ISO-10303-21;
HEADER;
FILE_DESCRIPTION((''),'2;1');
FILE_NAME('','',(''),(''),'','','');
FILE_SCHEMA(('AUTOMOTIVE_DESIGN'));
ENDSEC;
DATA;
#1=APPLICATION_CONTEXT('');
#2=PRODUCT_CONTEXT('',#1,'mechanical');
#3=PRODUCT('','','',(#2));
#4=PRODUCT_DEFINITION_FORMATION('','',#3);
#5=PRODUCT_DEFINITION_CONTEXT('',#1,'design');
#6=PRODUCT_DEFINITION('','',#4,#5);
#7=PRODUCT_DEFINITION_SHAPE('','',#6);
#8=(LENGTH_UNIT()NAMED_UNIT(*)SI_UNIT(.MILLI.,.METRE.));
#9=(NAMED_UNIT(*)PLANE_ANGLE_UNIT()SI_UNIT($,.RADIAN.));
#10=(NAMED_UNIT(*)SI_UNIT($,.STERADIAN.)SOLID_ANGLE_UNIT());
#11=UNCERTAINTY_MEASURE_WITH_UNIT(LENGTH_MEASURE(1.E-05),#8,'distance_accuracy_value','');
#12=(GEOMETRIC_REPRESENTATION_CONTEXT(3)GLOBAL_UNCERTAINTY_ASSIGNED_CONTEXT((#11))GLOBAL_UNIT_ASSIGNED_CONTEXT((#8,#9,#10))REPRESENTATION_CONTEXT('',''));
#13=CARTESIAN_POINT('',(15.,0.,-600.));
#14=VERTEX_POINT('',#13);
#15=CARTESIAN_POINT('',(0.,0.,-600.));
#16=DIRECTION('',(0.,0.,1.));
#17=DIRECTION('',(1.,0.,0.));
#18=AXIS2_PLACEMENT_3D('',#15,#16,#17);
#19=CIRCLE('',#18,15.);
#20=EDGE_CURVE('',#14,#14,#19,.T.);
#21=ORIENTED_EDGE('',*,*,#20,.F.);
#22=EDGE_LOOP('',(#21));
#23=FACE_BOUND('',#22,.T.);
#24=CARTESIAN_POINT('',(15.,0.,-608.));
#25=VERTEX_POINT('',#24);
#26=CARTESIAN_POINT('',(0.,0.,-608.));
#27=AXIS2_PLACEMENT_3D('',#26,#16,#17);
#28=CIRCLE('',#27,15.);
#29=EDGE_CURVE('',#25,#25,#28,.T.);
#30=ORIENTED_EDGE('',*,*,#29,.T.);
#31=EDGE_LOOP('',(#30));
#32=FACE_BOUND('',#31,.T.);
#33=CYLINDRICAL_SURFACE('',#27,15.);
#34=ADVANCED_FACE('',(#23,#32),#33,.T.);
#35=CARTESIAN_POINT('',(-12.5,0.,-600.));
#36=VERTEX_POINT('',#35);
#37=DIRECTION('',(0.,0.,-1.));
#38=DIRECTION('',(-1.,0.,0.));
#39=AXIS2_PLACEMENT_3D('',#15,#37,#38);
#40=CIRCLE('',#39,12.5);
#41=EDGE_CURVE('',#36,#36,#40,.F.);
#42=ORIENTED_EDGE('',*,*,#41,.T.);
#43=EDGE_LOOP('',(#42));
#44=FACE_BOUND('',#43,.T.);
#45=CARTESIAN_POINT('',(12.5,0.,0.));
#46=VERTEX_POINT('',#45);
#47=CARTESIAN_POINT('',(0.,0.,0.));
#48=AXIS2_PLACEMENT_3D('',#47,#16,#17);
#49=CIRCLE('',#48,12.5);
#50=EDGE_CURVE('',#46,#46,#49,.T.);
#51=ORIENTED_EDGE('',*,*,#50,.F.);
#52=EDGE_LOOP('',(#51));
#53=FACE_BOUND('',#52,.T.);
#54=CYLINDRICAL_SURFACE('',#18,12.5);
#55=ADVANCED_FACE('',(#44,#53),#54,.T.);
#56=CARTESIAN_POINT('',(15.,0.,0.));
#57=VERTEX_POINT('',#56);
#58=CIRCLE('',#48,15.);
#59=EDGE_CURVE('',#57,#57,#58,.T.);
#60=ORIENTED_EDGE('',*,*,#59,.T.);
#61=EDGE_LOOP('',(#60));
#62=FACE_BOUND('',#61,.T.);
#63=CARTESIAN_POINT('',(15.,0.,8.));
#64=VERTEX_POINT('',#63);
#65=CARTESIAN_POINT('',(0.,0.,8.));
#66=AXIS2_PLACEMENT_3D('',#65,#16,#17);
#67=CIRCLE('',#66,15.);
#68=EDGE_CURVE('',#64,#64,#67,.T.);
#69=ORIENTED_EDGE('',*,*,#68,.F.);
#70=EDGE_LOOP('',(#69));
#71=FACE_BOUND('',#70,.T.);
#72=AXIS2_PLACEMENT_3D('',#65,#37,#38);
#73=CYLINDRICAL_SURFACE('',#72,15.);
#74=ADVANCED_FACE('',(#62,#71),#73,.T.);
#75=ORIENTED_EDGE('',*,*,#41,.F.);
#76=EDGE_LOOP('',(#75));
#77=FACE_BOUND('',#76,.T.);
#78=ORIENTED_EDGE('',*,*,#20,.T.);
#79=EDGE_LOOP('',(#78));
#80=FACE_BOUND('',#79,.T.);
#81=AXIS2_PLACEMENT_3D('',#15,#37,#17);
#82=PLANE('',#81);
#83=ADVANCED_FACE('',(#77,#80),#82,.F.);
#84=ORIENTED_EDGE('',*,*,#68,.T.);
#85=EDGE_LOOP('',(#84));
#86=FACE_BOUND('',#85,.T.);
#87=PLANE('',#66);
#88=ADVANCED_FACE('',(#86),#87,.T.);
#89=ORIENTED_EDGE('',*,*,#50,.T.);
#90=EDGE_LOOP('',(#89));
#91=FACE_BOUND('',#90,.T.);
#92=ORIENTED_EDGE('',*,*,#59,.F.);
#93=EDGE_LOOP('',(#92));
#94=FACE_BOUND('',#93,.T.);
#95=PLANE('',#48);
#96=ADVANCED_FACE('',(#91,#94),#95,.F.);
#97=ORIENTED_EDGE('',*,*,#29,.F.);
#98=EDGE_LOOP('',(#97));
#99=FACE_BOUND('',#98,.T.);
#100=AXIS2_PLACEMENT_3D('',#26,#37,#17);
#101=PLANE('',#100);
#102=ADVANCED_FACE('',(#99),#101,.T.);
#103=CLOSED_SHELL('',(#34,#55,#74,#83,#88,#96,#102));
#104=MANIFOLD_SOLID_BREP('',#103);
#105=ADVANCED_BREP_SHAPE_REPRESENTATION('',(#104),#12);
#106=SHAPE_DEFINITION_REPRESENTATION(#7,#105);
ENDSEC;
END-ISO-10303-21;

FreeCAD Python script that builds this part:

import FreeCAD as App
import Part
import Sketcher

doc = App.newDocument("Part")
body = doc.addObject("PartDesign::Body", "Body")

sketch1 = body.newObject("Sketcher::SketchObject", "Sketch")
sketch1.AttachmentSupport = (doc.getObject("XY_Plane"), [""])
sketch1.MapMode = "FlatFace"
sketch1.addGeometry(Part.Circle(App.Vector(0, 0, 0), App.Vector(0, 0, 1), 12), False)
sketch1.addConstraint([
    Sketcher.Constraint("Coincident", 0, 3, -1, 1),
    Sketcher.Constraint("Diameter", 0, 25.0),
])
pad1 = body.newObject("PartDesign::Pad", "Pad")
pad1.Profile = sketch1
pad1.Length = 600
pad1.Reversed = True

sketch2 = body.newObject("Sketcher::SketchObject", "Sketch001")
sketch2.AttachmentSupport = (doc.getObject("XY_Plane"), [""])
sketch2.MapMode = "FlatFace"
sketch2.addGeometry(Part.Circle(App.Vector(0, 0, 0), App.Vector(0, 0, 1), 15), False)
sketch2.addConstraint([
    Sketcher.Constraint("Coincident", 0, 3, -1, 1),
    Sketcher.Constraint("Diameter", 0, 30.0),
])
pad2 = body.newObject("PartDesign::Pad", "Pad001")
pad2.Profile = sketch2
pad2.Length = 8
doc.recompute()

datumplane = body.newObject("PartDesign::Plane", "DatumPlane")
datumplane.AttachmentSupport = (doc.getObject("XY_Plane"), [""])
datumplane.MapMode = "FlatFace"
datumplane.AttachmentOffset = App.Placement(App.Vector(0, 0, -300), App.Rotation())
mirrored = body.newObject("PartDesign::Mirrored", "Mirrored")
mirrored.Originals = [pad2]
mirrored.MirrorPlane = (datumplane, [""])
body.Tip = mirrored

doc.recompute()
